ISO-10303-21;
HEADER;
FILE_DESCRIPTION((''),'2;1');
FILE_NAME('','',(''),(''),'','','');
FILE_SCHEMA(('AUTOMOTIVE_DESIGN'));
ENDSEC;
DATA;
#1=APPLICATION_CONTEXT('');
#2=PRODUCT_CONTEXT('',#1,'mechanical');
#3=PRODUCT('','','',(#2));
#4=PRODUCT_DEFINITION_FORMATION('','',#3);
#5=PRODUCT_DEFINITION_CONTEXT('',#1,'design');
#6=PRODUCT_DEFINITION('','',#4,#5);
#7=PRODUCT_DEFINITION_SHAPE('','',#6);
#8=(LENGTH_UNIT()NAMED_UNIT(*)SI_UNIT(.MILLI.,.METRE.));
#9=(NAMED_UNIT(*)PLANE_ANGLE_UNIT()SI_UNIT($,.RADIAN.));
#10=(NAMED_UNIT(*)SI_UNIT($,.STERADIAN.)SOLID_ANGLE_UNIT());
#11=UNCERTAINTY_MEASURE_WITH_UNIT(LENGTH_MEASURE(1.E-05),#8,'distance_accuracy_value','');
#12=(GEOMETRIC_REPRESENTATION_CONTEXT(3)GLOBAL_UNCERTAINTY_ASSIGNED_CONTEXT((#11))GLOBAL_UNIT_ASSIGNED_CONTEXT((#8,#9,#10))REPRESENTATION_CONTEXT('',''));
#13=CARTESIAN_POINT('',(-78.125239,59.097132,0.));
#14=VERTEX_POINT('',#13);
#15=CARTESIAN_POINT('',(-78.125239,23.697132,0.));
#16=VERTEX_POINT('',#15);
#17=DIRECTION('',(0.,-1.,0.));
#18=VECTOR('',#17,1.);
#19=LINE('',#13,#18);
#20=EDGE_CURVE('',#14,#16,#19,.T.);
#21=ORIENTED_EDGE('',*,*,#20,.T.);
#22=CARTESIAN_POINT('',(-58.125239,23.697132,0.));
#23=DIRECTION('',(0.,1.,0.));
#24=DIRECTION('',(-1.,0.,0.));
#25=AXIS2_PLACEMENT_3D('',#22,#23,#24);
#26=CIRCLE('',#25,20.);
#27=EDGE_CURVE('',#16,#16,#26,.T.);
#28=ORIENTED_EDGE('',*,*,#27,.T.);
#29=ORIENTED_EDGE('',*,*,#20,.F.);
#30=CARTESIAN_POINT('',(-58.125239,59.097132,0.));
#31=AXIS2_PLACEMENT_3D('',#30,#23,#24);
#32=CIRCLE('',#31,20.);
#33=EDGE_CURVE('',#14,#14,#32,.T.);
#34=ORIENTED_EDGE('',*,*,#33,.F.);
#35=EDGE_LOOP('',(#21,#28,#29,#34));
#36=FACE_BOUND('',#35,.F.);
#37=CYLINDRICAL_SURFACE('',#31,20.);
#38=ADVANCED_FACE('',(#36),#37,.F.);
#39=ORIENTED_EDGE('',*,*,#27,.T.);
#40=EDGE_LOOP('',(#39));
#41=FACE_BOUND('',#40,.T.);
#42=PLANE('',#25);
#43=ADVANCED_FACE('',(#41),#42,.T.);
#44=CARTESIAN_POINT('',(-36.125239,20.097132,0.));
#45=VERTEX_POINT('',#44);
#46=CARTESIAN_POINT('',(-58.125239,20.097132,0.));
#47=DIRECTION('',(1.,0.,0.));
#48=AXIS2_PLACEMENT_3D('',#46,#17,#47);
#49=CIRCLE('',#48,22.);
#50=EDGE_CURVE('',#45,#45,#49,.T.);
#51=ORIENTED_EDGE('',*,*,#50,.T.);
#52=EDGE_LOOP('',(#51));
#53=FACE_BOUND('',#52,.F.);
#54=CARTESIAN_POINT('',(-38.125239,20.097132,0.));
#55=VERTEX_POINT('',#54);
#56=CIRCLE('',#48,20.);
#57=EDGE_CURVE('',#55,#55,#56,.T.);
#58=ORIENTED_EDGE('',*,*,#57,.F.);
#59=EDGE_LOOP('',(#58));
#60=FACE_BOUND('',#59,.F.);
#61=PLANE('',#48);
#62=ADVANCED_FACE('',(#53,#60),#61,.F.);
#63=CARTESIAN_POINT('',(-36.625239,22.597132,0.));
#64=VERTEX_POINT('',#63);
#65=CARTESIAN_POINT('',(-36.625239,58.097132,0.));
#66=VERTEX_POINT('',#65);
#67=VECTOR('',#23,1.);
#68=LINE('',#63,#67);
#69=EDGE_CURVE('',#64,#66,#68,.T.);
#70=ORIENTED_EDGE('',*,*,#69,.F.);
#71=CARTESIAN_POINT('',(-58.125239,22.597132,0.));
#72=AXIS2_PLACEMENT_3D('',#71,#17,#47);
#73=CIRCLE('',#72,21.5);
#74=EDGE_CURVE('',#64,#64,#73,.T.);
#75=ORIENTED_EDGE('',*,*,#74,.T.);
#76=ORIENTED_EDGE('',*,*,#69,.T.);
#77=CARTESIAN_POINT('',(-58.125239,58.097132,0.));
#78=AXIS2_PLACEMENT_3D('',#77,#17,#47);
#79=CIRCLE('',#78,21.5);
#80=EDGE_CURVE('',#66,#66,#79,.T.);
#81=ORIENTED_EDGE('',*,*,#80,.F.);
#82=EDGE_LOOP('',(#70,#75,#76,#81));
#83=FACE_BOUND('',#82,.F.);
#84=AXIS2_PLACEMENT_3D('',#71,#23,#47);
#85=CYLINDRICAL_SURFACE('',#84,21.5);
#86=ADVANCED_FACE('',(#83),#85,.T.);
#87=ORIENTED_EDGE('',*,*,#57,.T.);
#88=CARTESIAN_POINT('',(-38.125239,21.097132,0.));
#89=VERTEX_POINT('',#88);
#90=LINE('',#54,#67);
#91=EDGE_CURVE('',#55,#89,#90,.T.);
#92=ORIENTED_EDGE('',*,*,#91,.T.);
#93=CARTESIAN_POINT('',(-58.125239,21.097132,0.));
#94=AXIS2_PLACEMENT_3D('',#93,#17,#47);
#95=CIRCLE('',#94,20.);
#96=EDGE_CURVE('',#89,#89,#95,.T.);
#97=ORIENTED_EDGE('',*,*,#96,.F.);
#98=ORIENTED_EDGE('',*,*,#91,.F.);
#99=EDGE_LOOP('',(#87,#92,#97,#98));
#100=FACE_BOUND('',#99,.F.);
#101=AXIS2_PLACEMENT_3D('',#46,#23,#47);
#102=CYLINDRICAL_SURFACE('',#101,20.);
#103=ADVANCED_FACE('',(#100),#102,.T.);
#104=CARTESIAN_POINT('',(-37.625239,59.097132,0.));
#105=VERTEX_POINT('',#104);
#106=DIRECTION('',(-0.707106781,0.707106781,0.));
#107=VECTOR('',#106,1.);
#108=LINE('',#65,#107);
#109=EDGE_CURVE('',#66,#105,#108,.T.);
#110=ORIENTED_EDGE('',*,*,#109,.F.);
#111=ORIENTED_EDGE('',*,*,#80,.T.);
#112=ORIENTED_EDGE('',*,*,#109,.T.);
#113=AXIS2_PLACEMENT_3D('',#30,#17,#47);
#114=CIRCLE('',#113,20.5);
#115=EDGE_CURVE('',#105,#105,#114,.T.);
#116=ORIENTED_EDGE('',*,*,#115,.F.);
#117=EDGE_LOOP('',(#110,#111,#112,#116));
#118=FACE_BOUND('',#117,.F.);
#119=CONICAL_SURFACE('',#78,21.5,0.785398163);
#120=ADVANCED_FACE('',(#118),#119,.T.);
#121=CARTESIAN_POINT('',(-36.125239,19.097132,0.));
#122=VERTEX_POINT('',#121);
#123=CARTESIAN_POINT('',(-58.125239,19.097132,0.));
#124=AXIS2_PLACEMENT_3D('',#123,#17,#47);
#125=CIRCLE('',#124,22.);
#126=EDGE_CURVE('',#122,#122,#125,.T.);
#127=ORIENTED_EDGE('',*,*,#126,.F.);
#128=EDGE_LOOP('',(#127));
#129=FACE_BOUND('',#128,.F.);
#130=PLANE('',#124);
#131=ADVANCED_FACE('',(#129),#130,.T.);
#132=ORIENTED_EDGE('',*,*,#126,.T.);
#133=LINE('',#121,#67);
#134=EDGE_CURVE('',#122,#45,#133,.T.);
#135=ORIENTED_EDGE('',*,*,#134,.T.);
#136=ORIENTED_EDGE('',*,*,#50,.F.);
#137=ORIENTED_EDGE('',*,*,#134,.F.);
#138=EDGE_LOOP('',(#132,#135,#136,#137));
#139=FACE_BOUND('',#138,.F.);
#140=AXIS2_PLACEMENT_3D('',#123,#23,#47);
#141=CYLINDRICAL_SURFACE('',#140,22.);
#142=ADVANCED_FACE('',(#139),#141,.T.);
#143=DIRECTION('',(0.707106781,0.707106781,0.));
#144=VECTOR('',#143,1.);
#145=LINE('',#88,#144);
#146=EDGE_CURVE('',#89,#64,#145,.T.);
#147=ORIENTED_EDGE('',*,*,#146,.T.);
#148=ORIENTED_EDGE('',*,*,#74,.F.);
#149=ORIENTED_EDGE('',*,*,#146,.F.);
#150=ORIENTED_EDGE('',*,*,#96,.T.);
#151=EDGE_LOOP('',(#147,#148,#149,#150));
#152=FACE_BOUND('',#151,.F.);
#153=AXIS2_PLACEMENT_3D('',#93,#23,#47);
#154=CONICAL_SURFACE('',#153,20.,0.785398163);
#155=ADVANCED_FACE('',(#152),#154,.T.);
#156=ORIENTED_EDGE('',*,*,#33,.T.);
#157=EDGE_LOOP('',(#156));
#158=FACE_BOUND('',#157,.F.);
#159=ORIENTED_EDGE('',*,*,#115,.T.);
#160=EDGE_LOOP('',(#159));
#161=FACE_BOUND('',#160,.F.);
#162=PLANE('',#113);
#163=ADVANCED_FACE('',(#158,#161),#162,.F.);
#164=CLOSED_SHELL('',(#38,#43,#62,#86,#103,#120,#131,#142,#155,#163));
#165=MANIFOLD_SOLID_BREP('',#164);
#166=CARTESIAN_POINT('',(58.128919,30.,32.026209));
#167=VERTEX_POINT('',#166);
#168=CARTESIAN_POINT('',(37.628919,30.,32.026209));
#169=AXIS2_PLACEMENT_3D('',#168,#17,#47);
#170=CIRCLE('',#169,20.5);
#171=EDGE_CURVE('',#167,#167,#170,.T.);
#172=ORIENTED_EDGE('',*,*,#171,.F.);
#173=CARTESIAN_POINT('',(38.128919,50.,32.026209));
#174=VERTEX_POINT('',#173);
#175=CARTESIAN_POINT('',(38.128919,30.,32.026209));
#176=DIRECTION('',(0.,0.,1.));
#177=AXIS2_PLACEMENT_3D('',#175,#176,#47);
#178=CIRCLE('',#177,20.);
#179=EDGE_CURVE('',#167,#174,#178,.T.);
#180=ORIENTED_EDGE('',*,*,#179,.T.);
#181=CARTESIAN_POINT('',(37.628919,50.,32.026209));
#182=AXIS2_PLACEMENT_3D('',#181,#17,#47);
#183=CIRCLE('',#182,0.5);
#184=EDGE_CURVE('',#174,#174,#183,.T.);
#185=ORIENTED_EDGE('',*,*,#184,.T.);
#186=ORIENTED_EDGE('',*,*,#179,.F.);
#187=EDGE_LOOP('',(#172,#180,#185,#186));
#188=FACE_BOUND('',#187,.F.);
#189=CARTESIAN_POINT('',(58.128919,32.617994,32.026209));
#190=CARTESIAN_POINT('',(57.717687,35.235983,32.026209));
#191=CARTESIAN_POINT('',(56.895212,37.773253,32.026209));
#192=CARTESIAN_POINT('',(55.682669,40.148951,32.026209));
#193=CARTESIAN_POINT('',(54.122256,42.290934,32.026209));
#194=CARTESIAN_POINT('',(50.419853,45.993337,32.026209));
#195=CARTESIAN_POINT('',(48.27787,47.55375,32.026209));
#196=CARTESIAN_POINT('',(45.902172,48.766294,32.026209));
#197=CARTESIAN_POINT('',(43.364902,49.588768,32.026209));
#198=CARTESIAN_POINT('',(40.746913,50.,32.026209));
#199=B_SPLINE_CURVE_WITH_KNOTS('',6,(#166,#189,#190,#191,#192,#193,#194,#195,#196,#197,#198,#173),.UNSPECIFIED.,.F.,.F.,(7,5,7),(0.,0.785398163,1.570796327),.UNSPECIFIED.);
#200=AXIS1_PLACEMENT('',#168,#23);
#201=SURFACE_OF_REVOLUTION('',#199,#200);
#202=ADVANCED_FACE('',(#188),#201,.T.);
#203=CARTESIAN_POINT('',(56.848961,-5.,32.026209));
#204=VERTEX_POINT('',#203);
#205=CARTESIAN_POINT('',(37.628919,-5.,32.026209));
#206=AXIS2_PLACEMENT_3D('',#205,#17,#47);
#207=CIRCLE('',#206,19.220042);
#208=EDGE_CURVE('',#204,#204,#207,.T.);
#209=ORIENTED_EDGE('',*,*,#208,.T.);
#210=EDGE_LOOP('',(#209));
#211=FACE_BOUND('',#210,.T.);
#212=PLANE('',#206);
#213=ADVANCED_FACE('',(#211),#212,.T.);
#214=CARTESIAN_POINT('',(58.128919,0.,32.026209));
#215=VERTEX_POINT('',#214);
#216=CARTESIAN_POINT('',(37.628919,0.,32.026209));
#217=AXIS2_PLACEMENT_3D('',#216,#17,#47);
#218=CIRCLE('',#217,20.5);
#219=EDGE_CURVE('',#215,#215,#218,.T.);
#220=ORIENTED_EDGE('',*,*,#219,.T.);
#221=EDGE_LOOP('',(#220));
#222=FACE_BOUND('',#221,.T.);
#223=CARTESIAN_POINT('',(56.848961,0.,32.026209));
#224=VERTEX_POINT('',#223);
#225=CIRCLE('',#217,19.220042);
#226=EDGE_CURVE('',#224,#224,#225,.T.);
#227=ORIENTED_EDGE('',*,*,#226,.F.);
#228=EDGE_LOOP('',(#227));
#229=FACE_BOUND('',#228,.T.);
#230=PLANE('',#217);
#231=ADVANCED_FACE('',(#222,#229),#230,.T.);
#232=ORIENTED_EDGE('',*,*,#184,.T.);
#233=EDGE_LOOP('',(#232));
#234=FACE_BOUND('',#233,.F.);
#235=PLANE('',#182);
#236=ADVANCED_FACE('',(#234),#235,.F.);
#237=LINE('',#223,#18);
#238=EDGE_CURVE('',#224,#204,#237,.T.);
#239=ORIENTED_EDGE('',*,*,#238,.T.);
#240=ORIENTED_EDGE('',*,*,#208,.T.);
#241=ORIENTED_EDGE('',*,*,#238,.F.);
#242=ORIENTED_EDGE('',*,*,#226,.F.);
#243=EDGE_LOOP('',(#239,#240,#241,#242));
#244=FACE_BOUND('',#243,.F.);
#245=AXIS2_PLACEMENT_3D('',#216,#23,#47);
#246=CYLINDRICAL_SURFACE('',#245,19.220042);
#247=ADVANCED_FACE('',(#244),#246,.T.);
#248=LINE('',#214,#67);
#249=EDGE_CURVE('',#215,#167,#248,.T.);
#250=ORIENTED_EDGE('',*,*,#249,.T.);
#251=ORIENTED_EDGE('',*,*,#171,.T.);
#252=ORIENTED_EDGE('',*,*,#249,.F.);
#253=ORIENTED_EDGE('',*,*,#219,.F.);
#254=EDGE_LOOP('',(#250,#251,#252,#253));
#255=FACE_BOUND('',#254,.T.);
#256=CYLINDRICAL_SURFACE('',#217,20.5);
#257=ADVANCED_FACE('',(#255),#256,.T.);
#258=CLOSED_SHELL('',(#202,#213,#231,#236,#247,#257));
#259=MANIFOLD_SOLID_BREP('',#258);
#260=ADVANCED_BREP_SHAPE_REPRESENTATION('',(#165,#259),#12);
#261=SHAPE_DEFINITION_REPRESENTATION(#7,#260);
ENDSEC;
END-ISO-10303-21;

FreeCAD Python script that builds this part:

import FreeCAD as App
import Part
import Sketcher

V = App.Vector
Q = App.Units.Quantity


def edges_at(feature, points):
    """Names of the edges that pass closest to the given points."""
    edges = feature.Shape.Edges
    near = lambda p: min(range(len(edges)), key=lambda i: edges[i].distToShape(Part.Vertex(*p))[0])
    return sorted({f"Edge{near(p) + 1}" for p in points})


def add_polygon(sketch, points):
    """Adds a closed chain of lines whose ends are joined by coincident constraints."""
    first, n = sketch.GeometryCount, len(points)
    for a, b in zip(points, points[1:] + points[:1]):
        sketch.addGeometry(Part.LineSegment(App.Vector(*a, 0), App.Vector(*b, 0)), False)
    for i in range(n):
        sketch.addConstraint(Sketcher.Constraint("Coincident", first + i, 2, first + (i + 1) % n, 1))

doc = App.newDocument("Part")
params = doc.addObject("Spreadsheet::Sheet", "Params")
for row, (alias, value) in enumerate([
    ("sketch1_width", "22 mm"),
    ("sketch1_width2", "2 mm"),
    ("sketch1_height", "40 mm"),
    ("sketch1_height2", "1 mm"),
    ("sketch1_width3", "21.5 mm"),
    ("revolution_angle", "360 deg"),
    ("sketch2_diameter", "40 mm"),
    ("pocket1_length", "35.4 mm"),
    ("chamfer_size", "1 mm"),
    ("sketch3_diameter", "41 mm"),
    ("pad1_length", "50 mm"),
    ("fillet_radius", "20 mm"),
    ("pad2_length", "5 mm"),
], start=1):
    params.set(f"A{row}", alias)
    params.set(f"B{row}", "=" + value)
    params.setAlias(f"B{row}", alias)

body = doc.addObject("PartDesign::Body", "Body")

# Sketch on XY plane
sketch1 = doc.addObject("Sketcher::SketchObject", "Sketch")
body.addObject(sketch1)
sketch1.AttachmentSupport = (doc.XY_Plane, [""])
sketch1.MapMode = "FlatFace"
add_polygon(sketch1, [(-36.6, 22.6), (-36.6, 59.1), (-58.1, 59.1), (-58.1, 19.1), (-36.1, 19.1), (-36.1, 20.1), (-38.1, 20.1), (-38.1, 21.1)])  # lines 0-7
sketch1.addGeometry(Part.LineSegment(V(-58.1, 59.1, 0), V(-58.1, 19.1, 0)), True)  # axis
sketch1.addConstraint([
    Sketcher.Constraint("Vertical", 0),
    Sketcher.Constraint("Horizontal", 1),
    Sketcher.Constraint("Vertical", 2),
    Sketcher.Constraint("Horizontal", 3),
    Sketcher.Constraint("Vertical", 4),
    Sketcher.Constraint("Horizontal", 5),
    Sketcher.Constraint("Vertical", 6),
    Sketcher.Constraint("Vertical", 8),
    Sketcher.Constraint("Coincident", 8, 1, 1, 2),
    Sketcher.Constraint("Horizontal", 3, 2, 8, 2),
    Sketcher.Constraint("Equal", 4, 6),
    Sketcher.Constraint("DistanceX", 3, 1, 3, 2, 22.0),
    Sketcher.Constraint("DistanceX", 5, 2, 5, 1, 2.0),
    Sketcher.Constraint("DistanceY", 2, 2, 2, 1, 40.0),
    Sketcher.Constraint("DistanceY", 4, 1, 4, 2, 1.0),
    Sketcher.Constraint("Angle", 7, Q("45 deg")),
    Sketcher.Constraint("DistanceX", 1, 2, 1, 1, 21.5),
    Sketcher.Constraint("DistanceX", 0, 2, -1, 1, 36.625239),
    Sketcher.Constraint("DistanceY", -1, 1, 0, 2, 59.097132),
])
sketch1.setExpression("Constraints[19]", "Params.sketch1_width")
sketch1.setExpression("Constraints[20]", "Params.sketch1_width2")
sketch1.setExpression("Constraints[21]", "Params.sketch1_height")
sketch1.setExpression("Constraints[22]", "Params.sketch1_height2")
sketch1.setExpression("Constraints[24]", "Params.sketch1_width3")
revolution = doc.addObject("PartDesign::Revolution", "Revolution")
body.addObject(revolution)
revolution.Profile = sketch1
revolution.ReferenceAxis = (sketch1, ["Axis0"])
revolution.setExpression("Angle", "Params.revolution_angle")

# Sketch on XZ plane
sketch2 = doc.addObject("Sketcher::SketchObject", "Sketch001")
body.addObject(sketch2)
sketch2.AttachmentSupport = (doc.XZ_Plane, [""])
sketch2.MapMode = "FlatFace"
sketch2.AttachmentOffset = App.Placement(V(0, 0, -59.097132), App.Rotation())
sketch2.addGeometry(Part.Circle(V(-58, 0, 0), V(0, 0, 1), 20), False)
sketch2.addConstraint([
    Sketcher.Constraint("PointOnObject", 0, 3, -1),
    Sketcher.Constraint("Diameter", 0, 40.0),
    Sketcher.Constraint("DistanceX", 0, 3, -1, 1, 58.125239),
])
sketch2.setExpression("Constraints[1]", "Params.sketch2_diameter")
pocket1 = doc.addObject("PartDesign::Pocket", "Pocket")
body.addObject(pocket1)
pocket1.Profile = sketch2
pocket1.setExpression("Length", "Params.pocket1_length")
pocket1.Reversed = True
doc.recompute()

chamfer = doc.addObject("PartDesign::Chamfer", "Chamfer")
body.addObject(chamfer)
chamfer.Base = (pocket1, edges_at(pocket1, [(-79.625, 59.097, 0)]))
chamfer.setExpression("Size", "Params.chamfer_size")
body2 = doc.addObject("PartDesign::Body", "Body001")

# Sketch on XZ plane
sketch3 = doc.addObject("Sketcher::SketchObject", "Sketch002")
body2.addObject(sketch3)
sketch3.AttachmentSupport = (doc.getObject("XZ_Plane001"), [""])
sketch3.MapMode = "FlatFace"
sketch3.addGeometry(Part.Circle(V(38, 32, 0), V(0, 0, 1), 20), False)
sketch3.addConstraint([
    Sketcher.Constraint("Diameter", 0, 41.0),
    Sketcher.Constraint("DistanceX", -1, 1, 0, 3, 37.628919),
    Sketcher.Constraint("DistanceY", -1, 1, 0, 3, 32.026209),
])
sketch3.setExpression("Constraints[0]", "Params.sketch3_diameter")
pad1 = doc.addObject("PartDesign::Pad", "Pad")
body2.addObject(pad1)
pad1.Profile = sketch3
pad1.setExpression("Length", "Params.pad1_length")
pad1.Reversed = True
doc.recompute()

fillet = doc.addObject("PartDesign::Fillet", "Fillet")
body2.addObject(fillet)
fillet.Base = (pad1, edges_at(pad1, [(17.129, 50, 32.026)]))
fillet.setExpression("Radius", "Params.fillet_radius")

# Sketch on XZ plane
sketch4 = doc.addObject("Sketcher::SketchObject", "Sketch003")
body2.addObject(sketch4)
sketch4.AttachmentSupport = (doc.getObject("XZ_Plane001"), [""])
sketch4.MapMode = "FlatFace"
sketch4.addGeometry(Part.Circle(V(38, 32, 0), V(0, 0, 1), 19), False)
sketch4.addConstraint([
    Sketcher.Constraint("Diameter", 0, 38.440084),
    Sketcher.Constraint("DistanceX", -1, 1, 0, 3, 37.628919),
    Sketcher.Constraint("DistanceY", -1, 1, 0, 3, 32.026209),
])
pad2 = doc.addObject("PartDesign::Pad", "Pad001")
body2.addObject(pad2)
pad2.Profile = sketch4
pad2.setExpression("Length", "Params.pad2_length")

doc.recompute()
